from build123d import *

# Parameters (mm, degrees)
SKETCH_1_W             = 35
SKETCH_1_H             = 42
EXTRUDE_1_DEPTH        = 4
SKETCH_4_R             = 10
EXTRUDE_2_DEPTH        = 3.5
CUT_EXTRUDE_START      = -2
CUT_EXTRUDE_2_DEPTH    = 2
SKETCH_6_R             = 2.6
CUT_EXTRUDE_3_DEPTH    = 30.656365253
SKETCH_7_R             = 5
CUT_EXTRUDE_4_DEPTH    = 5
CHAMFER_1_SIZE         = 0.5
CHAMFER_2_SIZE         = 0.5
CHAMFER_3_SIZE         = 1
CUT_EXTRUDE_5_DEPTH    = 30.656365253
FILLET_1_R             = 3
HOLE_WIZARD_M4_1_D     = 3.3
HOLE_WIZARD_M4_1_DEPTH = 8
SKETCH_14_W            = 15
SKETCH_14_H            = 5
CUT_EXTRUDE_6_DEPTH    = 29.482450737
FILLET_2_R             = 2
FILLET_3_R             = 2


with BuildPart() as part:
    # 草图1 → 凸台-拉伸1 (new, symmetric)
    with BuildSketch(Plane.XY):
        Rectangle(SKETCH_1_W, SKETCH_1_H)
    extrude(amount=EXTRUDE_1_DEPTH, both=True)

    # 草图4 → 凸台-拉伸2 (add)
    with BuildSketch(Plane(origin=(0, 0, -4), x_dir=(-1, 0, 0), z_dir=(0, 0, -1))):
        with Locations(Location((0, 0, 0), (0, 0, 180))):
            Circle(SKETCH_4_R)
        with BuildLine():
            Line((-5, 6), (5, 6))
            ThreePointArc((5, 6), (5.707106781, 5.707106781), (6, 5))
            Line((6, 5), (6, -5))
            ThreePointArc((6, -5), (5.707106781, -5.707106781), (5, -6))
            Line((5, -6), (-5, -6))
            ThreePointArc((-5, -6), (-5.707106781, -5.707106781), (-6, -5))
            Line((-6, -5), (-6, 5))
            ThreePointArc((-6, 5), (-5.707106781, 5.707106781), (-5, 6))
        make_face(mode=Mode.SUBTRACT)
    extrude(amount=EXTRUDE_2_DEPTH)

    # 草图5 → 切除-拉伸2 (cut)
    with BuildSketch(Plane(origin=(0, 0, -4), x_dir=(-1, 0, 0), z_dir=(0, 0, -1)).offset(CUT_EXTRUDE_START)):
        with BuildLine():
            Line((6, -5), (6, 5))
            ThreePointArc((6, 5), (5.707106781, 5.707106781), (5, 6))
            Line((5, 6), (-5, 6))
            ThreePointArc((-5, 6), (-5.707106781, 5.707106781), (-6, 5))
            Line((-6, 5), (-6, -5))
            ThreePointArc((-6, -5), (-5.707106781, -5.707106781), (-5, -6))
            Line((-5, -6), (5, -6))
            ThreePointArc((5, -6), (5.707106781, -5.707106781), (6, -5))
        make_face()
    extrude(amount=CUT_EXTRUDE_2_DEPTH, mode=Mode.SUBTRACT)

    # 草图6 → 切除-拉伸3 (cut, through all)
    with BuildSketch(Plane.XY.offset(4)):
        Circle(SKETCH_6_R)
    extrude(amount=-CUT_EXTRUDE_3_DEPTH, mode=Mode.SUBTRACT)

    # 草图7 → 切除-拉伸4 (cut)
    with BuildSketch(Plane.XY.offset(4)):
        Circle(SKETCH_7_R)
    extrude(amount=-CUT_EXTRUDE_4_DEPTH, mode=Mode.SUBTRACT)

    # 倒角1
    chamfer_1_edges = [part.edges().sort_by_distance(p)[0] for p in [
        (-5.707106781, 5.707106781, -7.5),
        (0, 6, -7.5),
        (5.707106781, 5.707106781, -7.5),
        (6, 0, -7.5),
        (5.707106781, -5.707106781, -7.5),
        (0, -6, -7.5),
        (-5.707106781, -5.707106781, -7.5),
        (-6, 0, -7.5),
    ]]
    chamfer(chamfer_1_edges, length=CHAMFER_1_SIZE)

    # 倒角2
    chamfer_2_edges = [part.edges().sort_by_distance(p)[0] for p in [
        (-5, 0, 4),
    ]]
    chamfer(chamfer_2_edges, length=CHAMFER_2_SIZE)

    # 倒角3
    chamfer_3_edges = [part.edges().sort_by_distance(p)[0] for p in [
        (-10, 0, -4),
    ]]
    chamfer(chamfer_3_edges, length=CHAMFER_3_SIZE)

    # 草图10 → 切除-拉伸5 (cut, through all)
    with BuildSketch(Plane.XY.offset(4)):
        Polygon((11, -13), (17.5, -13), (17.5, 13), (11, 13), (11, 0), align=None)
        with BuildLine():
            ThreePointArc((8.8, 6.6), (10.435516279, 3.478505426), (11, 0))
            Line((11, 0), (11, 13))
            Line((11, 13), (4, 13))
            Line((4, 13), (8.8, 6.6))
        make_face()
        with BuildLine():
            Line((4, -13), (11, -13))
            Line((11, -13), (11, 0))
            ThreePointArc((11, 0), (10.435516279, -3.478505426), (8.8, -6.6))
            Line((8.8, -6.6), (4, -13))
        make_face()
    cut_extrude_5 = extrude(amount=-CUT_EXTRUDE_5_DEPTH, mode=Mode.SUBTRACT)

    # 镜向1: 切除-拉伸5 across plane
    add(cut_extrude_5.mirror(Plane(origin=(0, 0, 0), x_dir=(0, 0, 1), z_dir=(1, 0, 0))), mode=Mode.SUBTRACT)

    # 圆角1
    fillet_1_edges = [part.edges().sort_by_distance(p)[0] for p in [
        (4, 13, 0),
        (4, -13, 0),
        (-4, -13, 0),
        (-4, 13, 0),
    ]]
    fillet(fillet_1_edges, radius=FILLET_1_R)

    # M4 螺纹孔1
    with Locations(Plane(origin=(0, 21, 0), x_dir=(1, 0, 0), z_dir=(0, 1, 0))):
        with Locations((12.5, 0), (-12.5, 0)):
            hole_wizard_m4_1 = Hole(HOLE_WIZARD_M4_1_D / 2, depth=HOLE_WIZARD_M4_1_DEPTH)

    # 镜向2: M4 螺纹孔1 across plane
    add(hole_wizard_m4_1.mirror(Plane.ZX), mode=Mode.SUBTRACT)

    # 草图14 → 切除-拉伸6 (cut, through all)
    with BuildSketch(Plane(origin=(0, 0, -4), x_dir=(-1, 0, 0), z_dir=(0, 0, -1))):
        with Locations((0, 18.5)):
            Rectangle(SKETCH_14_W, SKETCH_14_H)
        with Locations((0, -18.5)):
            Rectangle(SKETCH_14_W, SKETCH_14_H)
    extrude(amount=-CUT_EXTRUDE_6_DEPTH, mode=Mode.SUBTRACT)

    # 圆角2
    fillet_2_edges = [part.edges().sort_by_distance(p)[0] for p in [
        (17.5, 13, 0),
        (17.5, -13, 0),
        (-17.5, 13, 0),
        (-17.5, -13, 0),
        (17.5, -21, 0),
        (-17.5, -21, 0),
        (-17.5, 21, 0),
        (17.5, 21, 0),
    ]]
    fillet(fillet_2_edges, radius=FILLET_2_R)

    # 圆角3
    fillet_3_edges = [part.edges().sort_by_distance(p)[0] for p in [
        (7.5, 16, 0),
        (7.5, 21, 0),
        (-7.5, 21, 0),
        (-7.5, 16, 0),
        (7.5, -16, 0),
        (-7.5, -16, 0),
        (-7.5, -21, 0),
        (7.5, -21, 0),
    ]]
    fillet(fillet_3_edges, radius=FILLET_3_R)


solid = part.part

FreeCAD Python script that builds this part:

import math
import FreeCAD as App
import Part
import Sketcher
from FreeCAD import Vector
Q = App.Units.Quantity


def edges_at(feature, points):
    """Names of the edges that pass closest to the given points."""
    edges = feature.Shape.Edges
    near = lambda p: min(range(len(edges)), key=lambda i: edges[i].distToShape(Part.Vertex(*p))[0])
    return sorted({f"Edge{near(p) + 1}" for p in points})

doc = App.newDocument("Part")
body = doc.addObject("PartDesign::Body", "Body")

sketch1 = body.newObject("Sketcher::SketchObject", "Sketch")
sketch1.AttachmentSupport = (doc.getObject("XY_Plane"), [""])
sketch1.MapMode = "FlatFace"
sketch1.addGeometry([
    Part.LineSegment(Vector(-18, 21, 0), Vector(-18, -21, 0)),
    Part.LineSegment(Vector(-18, -21, 0), Vector(18, -21, 0)),
    Part.LineSegment(Vector(18, -21, 0), Vector(18, 21, 0)),
    Part.LineSegment(Vector(18, 21, 0), Vector(-18, 21, 0)),
], False)
sketch1.addConstraint([
    Sketcher.Constraint("Coincident", 0, 2, 1, 1),
    Sketcher.Constraint("Coincident", 1, 2, 2, 1),
    Sketcher.Constraint("Coincident", 2, 2, 3, 1),
    Sketcher.Constraint("Coincident", 3, 2, 0, 1),
    Sketcher.Constraint("Vertical", 0),
    Sketcher.Constraint("Horizontal", 1),
    Sketcher.Constraint("Vertical", 2),
    Sketcher.Constraint("Horizontal", 3),
    Sketcher.Constraint("Symmetric", 0, 2, 2, 2, -1, 1),
    Sketcher.Constraint("DistanceX", 1, 1, 1, 2, Q("35 mm")),
    Sketcher.Constraint("DistanceY", 0, 2, 0, 1, Q("42 mm")),
])
pad1 = body.newObject("PartDesign::Pad", "Pad")
pad1.Profile = sketch1
pad1.Length = 8
pad1.Midplane = True

sketch2 = body.newObject("Sketcher::SketchObject", "Sketch001")
sketch2.AttachmentSupport = (doc.getObject("XY_Plane"), [""])
sketch2.MapMode = "FlatFace"
sketch2.AttachmentOffset = App.Placement(Vector(0, 0, -4), App.Rotation())
sketch2.addGeometry([
    Part.Circle(Vector(0, 0, 0), Vector(0, 0, 1), 10),
    Part.ArcOfCircle(Part.Circle(Vector(5, 5, 0), Vector(0, 0, 1), 1), math.radians(0), math.radians(90)),
    Part.LineSegment(Vector(5, 6, 0), Vector(-5, 6, 0)),
    Part.ArcOfCircle(Part.Circle(Vector(-5, 5, 0), Vector(0, 0, 1), 1), math.radians(90), math.radians(180)),
    Part.LineSegment(Vector(-6, 5, 0), Vector(-6, -5, 0)),
    Part.ArcOfCircle(Part.Circle(Vector(-5, -5, 0), Vector(0, 0, 1), 1), math.radians(-180), math.radians(-90)),
    Part.LineSegment(Vector(-5, -6, 0), Vector(5, -6, 0)),
    Part.ArcOfCircle(Part.Circle(Vector(5, -5, 0), Vector(0, 0, 1), 1), math.radians(-90), math.radians(0)),
    Part.LineSegment(Vector(6, -5, 0), Vector(6, 5, 0)),
], False)
sketch2.addConstraint([
    Sketcher.Constraint("Tangent", 1, 2, 2, 1),
    Sketcher.Constraint("Tangent", 2, 2, 3, 1),
    Sketcher.Constraint("Tangent", 3, 2, 4, 1),
    Sketcher.Constraint("Tangent", 4, 2, 5, 1),
    Sketcher.Constraint("Tangent", 5, 2, 6, 1),
    Sketcher.Constraint("Tangent", 6, 2, 7, 1),
    Sketcher.Constraint("Tangent", 7, 2, 8, 1),
    Sketcher.Constraint("Tangent", 8, 2, 1, 1),
    Sketcher.Constraint("Horizontal", 2),
    Sketcher.Constraint("Vertical", 4),
    Sketcher.Constraint("Horizontal", 6),
    Sketcher.Constraint("Vertical", 8),
    Sketcher.Constraint("Coincident", 0, 3, -1, 1),
    Sketcher.Constraint("Equal", 1, 3),
    Sketcher.Constraint("Equal", 3, 5),
    Sketcher.Constraint("Equal", 5, 7),
    Sketcher.Constraint("Symmetric", 1, 3, 5, 3, -1, 1),
    Sketcher.Constraint("Equal", 6, 4),
    Sketcher.Constraint("Diameter", 0, Q("20 mm")),
    Sketcher.Constraint("Radius", 1, Q("1 mm")),
    Sketcher.Constraint("DistanceX", 2, 2, 2, 1, Q("10 mm")),
])
pad2 = body.newObject("PartDesign::Pad", "Pad001")
pad2.Profile = sketch2
pad2.Length = 3.5
pad2.Reversed = True

sketch3 = body.newObject("Sketcher::SketchObject", "Sketch002")
sketch3.AttachmentSupport = (doc.getObject("XY_Plane"), [""])
sketch3.MapMode = "FlatFace"
sketch3.AttachmentOffset = App.Placement(Vector(0, 0, -2), App.Rotation())
sketch3.addGeometry([
    Part.LineSegment(Vector(-6, -5, 0), Vector(-6, 5, 0)),
    Part.ArcOfCircle(Part.Circle(Vector(-5, 5, 0), Vector(0, 0, 1), 1), math.radians(90), math.radians(180)),
    Part.LineSegment(Vector(-5, 6, 0), Vector(5, 6, 0)),
    Part.ArcOfCircle(Part.Circle(Vector(5, 5, 0), Vector(0, 0, 1), 1), math.radians(0), math.radians(90)),
    Part.LineSegment(Vector(6, 5, 0), Vector(6, -5, 0)),
    Part.ArcOfCircle(Part.Circle(Vector(5, -5, 0), Vector(0, 0, 1), 1), math.radians(-90), math.radians(0)),
    Part.LineSegment(Vector(5, -6, 0), Vector(-5, -6, 0)),
    Part.ArcOfCircle(Part.Circle(Vector(-5, -5, 0), Vector(0, 0, 1), 1), math.radians(-180), math.radians(-90)),
], False)
sketch3.addConstraint([
    Sketcher.Constraint("Tangent", 0, 2, 1, 2),
    Sketcher.Constraint("Tangent", 1, 1, 2, 1),
    Sketcher.Constraint("Tangent", 2, 2, 3, 2),
    Sketcher.Constraint("Tangent", 3, 1, 4, 1),
    Sketcher.Constraint("Tangent", 4, 2, 5, 2),
    Sketcher.Constraint("Tangent", 5, 1, 6, 1),
    Sketcher.Constraint("Tangent", 6, 2, 7, 2),
    Sketcher.Constraint("Tangent", 7, 1, 0, 1),
    Sketcher.Constraint("Vertical", 0),
    Sketcher.Constraint("Horizontal", 2),
    Sketcher.Constraint("Vertical", 4),
    Sketcher.Constraint("Horizontal", 6),
    Sketcher.Constraint("Equal", 1, 3),
    Sketcher.Constraint("Equal", 3, 5),
    Sketcher.Constraint("Equal", 5, 7),
    Sketcher.Constraint("Symmetric", 1, 3, 5, 3, -1, 1),
    Sketcher.Constraint("Equal", 6, 0),
    Sketcher.Constraint("Radius", 1, Q("1 mm")),
    Sketcher.Constraint("DistanceX", 2, 1, 2, 2, Q("10 mm")),
])
pocket1 = body.newObject("PartDesign::Pocket", "Pocket")
pocket1.Profile = sketch3
pocket1.Length = 2

sketch4 = body.newObject("Sketcher::SketchObject", "Sketch003")
sketch4.AttachmentSupport = (doc.getObject("XY_Plane"), [""])
sketch4.MapMode = "FlatFace"
sketch4.AttachmentOffset = App.Placement(Vector(0, 0, 4), App.Rotation())
sketch4.addGeometry(Part.Circle(Vector(0, 0, 0), Vector(0, 0, 1), 2.6), False)
sketch4.addConstraint([
    Sketcher.Constraint("Coincident", 0, 3, -1, 1),
    Sketcher.Constraint("Diameter", 0, Q("5.2 mm")),
])
pocket2 = body.newObject("PartDesign::Pocket", "Pocket001")
pocket2.Profile = sketch4
pocket2.Type = "ThroughAll"

sketch5 = body.newObject("Sketcher::SketchObject", "Sketch004")
sketch5.AttachmentSupport = (doc.getObject("XY_Plane"), [""])
sketch5.MapMode = "FlatFace"
sketch5.AttachmentOffset = App.Placement(Vector(0, 0, 4), App.Rotation())
sketch5.addGeometry(Part.Circle(Vector(0, 0, 0), Vector(0, 0, 1), 5), False)
sketch5.addConstraint([
    Sketcher.Constraint("Coincident", 0, 3, -1, 1),
    Sketcher.Constraint("Diameter", 0, Q("10 mm")),
])
pocket3 = body.newObject("PartDesign::Pocket", "Pocket002")
pocket3.Profile = sketch5
pocket3.Length = 5
doc.recompute()

chamfer = body.newObject("PartDesign::Chamfer", "Chamfer")
chamfer.Base = (pocket3, edges_at(pocket3, [
    (-5.707, 5.707, -7.5),
    (0, 6, -7.5),
    (5.707, 5.707, -7.5),
    (6, 0, -7.5),
    (5.707, -5.707, -7.5),
    (0, -6, -7.5),
    (-5.707, -5.707, -7.5),
    (-6, 0, -7.5),
]))
chamfer.Size = 0.5
doc.recompute()

chamfer2 = body.newObject("PartDesign::Chamfer", "Chamfer001")
chamfer2.Base = (chamfer, edges_at(chamfer, [(-5, 0, 4)]))
chamfer2.Size = 0.5
doc.recompute()

chamfer3 = body.newObject("PartDesign::Chamfer", "Chamfer002")
chamfer3.Base = (chamfer2, edges_at(chamfer2, [(-10, 0, -4)]))
chamfer3.Size = 1

sketch6 = body.newObject("Sketcher::SketchObject", "Sketch005")
sketch6.AttachmentSupport = (doc.getObject("XY_Plane"), [""])
sketch6.MapMode = "FlatFace"
sketch6.AttachmentOffset = App.Placement(Vector(0, 0, 4), App.Rotation())
sketch6.addGeometry([
    Part.LineSegment(Vector(18, -13, 0), Vector(18, 13, 0)),
    Part.LineSegment(Vector(18, 13, 0), Vector(4, 13, 0)),
    Part.LineSegment(Vector(4, 13, 0), Vector(9, 7, 0)),
    Part.ArcOfCircle(Part.Circle(Vector(0, 0, 0), Vector(0, 0, 1), 11), math.radians(0), math.radians(37)),
    Part.ArcOfCircle(Part.Circle(Vector(0, 0, 0), Vector(0, 0, 1), 11), math.radians(-37), math.radians(0)),
    Part.LineSegment(Vector(9, -7, 0), Vector(4, -13, 0)),
    Part.LineSegment(Vector(4, -13, 0), Vector(18, -13, 0)),
], False)
sketch6.addConstraint([
    Sketcher.Constraint("Coincident", 0, 2, 1, 1),
    Sketcher.Constraint("Coincident", 1, 2, 2, 1),
    Sketcher.Constraint("Tangent", 2, 2, 3, 2),
    Sketcher.Constraint("Tangent", 3, 1, 4, 2),
    Sketcher.Constraint("Tangent", 4, 1, 5, 1),
    Sketcher.Constraint("Coincident", 5, 2, 6, 1),
    Sketcher.Constraint("Coincident", 6, 2, 0, 1),
    Sketcher.Constraint("Vertical", 0),
    Sketcher.Constraint("Horizontal", 1),
    Sketcher.Constraint("Horizontal", 6),
    Sketcher.Constraint("Coincident", 3, 3, -1, 1),
    Sketcher.Constraint("Equal", 3, 4),
    Sketcher.Constraint("Symmetric", 1, 2, 5, 2, -1),
    Sketcher.Constraint("PointOnObject", 3, 1, -1),
    Sketcher.Constraint("Radius", 3, Q("11 mm")),
    Sketcher.Constraint("DistanceY", 0, 1, 0, 2, Q("26 mm")),
    Sketcher.Constraint("Distance", 2, Q("8 mm")),
    Sketcher.Constraint("DistanceX", 1, 2, 1, 1, Q("13.5 mm")),
])
pocket4 = body.newObject("PartDesign::Pocket", "Pocket003")
pocket4.Profile = sketch6
pocket4.Type = "ThroughAll"
doc.recompute()

mirrored = body.newObject("PartDesign::Mirrored", "Mirrored")
mirrored.Originals = [pocket4]
mirrored.MirrorPlane = (doc.getObject("YZ_Plane"), [""])
body.Tip = mirrored
doc.recompute()

fillet = body.newObject("PartDesign::Fillet", "Fillet")
fillet.Base = (mirrored, edges_at(mirrored, [
    (4, 13, 0),
    (4, -13, 0),
    (-4, -13, 0),
    (-4, 13, 0),
]))
fillet.Radius = 3

sketch7 = body.newObject("Sketcher::SketchObject", "Sketch006")
sketch7.AttachmentSupport = (doc.getObject("XZ_Plane"), [""])
sketch7.MapMode = "FlatFace"
sketch7.AttachmentOffset = App.Placement(Vector(0, 0, -21), App.Rotation())
sketch7.addGeometry([
    Part.Circle(Vector(12.5, 0, 0), Vector(0, 0, 1), 1.6),
    Part.Circle(Vector(-12.5, 0, 0), Vector(0, 0, 1), 1.6),
], False)
sketch7.addConstraint([
    Sketcher.Constraint("Equal", 0, 1),
    Sketcher.Constraint("Symmetric", 0, 3, 1, 3, -1, 1),
    Sketcher.Constraint("PointOnObject", 0, 3, -1),
    Sketcher.Constraint("Diameter", 0, Q("3.3 mm")),
    Sketcher.Constraint("DistanceX", 1, 3, 0, 3, Q("25 mm")),
])
doc.recompute()
hole = body.newObject("PartDesign::Hole", "Hole")
hole.Profile = sketch7
hole.ThreadType = "None"
hole.Diameter = 3.3
hole.DepthType = "Dimension"
hole.Depth = 8
hole.DrillPoint = "Flat"
hole.Reversed = True
doc.recompute()

mirrored2 = body.newObject("PartDesign::Mirrored", "Mirrored001")
mirrored2.Originals = [hole]
mirrored2.MirrorPlane = (doc.getObject("XZ_Plane"), [""])
body.Tip = mirrored2

sketch8 = body.newObject("Sketcher::SketchObject", "Sketch007")
sketch8.AttachmentSupport = (doc.getObject("XY_Plane"), [""])
sketch8.MapMode = "FlatFace"
sketch8.AttachmentOffset = App.Placement(Vector(0, 0, -4), App.Rotation())
sketch8.addGeometry([
    Part.LineSegment(Vector(8, 21, 0), Vector(8, 16, 0)),
    Part.LineSegment(Vector(8, 16, 0), Vector(-8, 16, 0)),
    Part.LineSegment(Vector(-8, 16, 0), Vector(-8, 21, 0)),
    Part.LineSegment(Vector(-8, 21, 0), Vector(8, 21, 0)),
    Part.LineSegment(Vector(8, -16, 0), Vector(8, -21, 0)),
    Part.LineSegment(Vector(8, -21, 0), Vector(-8, -21, 0)),
    Part.LineSegment(Vector(-8, -21, 0), Vector(-8, -16, 0)),
    Part.LineSegment(Vector(-8, -16, 0), Vector(8, -16, 0)),
], False)
sketch8.addConstraint([
    Sketcher.Constraint("Coincident", 0, 2, 1, 1),
    Sketcher.Constraint("Coincident", 1, 2, 2, 1),
    Sketcher.Constraint("Coincident", 2, 2, 3, 1),
    Sketcher.Constraint("Coincident", 3, 2, 0, 1),
    Sketcher.Constraint("Coincident", 4, 2, 5, 1),
    Sketcher.Constraint("Coincident", 5, 2, 6, 1),
    Sketcher.Constraint("Coincident", 6, 2, 7, 1),
    Sketcher.Constraint("Coincident", 7, 2, 4, 1),
    Sketcher.Constraint("Vertical", 0),
    Sketcher.Constraint("Horizontal", 1),
    Sketcher.Constraint("Vertical", 2),
    Sketcher.Constraint("Horizontal", 3),
    Sketcher.Constraint("Vertical", 4),
    Sketcher.Constraint("Horizontal", 5),
    Sketcher.Constraint("Vertical", 6),
    Sketcher.Constraint("Horizontal", 7),
    Sketcher.Constraint("Symmetric", 2, 2, 4, 2, -1, 1),
    Sketcher.Constraint("Symmetric", 0, 2, 6, 2, -1, 1),
    Sketcher.Constraint("Vertical", 3, 2, 4, 2),
    Sketcher.Constraint("DistanceX", 1, 2, 1, 1, Q("15 mm")),
    Sketcher.Constraint("DistanceY", 0, 2, 0, 1, Q("5 mm")),
    Sketcher.Constraint("DistanceY", -1, 1, 0, 2, Q("16 mm")),
])
pocket5 = body.newObject("PartDesign::Pocket", "Pocket004")
pocket5.Profile = sketch8
pocket5.Type = "ThroughAll"
pocket5.Reversed = True
doc.recompute()

fillet2 = body.newObject("PartDesign::Fillet", "Fillet001")
fillet2.Base = (pocket5, edges_at(pocket5, [
    (17.5, 13, 0),
    (17.5, -13, 0),
    (-17.5, 13, 0),
    (-17.5, -13, 0),
    (17.5, -21, 0),
    (-17.5, -21, 0),
    (-17.5, 21, 0),
    (17.5, 21, 0),
]))
fillet2.Radius = 2
doc.recompute()

fillet3 = body.newObject("PartDesign::Fillet", "Fillet002")
fillet3.Base = (fillet2, edges_at(fillet2, [
    (7.5, 16, 0),
    (7.5, 21, 0),
    (-7.5, 21, 0),
    (-7.5, 16, 0),
    (7.5, -16, 0),
    (-7.5, -16, 0),
    (-7.5, -21, 0),
    (7.5, -21, 0),
]))
fillet3.Radius = 2

doc.recompute()
